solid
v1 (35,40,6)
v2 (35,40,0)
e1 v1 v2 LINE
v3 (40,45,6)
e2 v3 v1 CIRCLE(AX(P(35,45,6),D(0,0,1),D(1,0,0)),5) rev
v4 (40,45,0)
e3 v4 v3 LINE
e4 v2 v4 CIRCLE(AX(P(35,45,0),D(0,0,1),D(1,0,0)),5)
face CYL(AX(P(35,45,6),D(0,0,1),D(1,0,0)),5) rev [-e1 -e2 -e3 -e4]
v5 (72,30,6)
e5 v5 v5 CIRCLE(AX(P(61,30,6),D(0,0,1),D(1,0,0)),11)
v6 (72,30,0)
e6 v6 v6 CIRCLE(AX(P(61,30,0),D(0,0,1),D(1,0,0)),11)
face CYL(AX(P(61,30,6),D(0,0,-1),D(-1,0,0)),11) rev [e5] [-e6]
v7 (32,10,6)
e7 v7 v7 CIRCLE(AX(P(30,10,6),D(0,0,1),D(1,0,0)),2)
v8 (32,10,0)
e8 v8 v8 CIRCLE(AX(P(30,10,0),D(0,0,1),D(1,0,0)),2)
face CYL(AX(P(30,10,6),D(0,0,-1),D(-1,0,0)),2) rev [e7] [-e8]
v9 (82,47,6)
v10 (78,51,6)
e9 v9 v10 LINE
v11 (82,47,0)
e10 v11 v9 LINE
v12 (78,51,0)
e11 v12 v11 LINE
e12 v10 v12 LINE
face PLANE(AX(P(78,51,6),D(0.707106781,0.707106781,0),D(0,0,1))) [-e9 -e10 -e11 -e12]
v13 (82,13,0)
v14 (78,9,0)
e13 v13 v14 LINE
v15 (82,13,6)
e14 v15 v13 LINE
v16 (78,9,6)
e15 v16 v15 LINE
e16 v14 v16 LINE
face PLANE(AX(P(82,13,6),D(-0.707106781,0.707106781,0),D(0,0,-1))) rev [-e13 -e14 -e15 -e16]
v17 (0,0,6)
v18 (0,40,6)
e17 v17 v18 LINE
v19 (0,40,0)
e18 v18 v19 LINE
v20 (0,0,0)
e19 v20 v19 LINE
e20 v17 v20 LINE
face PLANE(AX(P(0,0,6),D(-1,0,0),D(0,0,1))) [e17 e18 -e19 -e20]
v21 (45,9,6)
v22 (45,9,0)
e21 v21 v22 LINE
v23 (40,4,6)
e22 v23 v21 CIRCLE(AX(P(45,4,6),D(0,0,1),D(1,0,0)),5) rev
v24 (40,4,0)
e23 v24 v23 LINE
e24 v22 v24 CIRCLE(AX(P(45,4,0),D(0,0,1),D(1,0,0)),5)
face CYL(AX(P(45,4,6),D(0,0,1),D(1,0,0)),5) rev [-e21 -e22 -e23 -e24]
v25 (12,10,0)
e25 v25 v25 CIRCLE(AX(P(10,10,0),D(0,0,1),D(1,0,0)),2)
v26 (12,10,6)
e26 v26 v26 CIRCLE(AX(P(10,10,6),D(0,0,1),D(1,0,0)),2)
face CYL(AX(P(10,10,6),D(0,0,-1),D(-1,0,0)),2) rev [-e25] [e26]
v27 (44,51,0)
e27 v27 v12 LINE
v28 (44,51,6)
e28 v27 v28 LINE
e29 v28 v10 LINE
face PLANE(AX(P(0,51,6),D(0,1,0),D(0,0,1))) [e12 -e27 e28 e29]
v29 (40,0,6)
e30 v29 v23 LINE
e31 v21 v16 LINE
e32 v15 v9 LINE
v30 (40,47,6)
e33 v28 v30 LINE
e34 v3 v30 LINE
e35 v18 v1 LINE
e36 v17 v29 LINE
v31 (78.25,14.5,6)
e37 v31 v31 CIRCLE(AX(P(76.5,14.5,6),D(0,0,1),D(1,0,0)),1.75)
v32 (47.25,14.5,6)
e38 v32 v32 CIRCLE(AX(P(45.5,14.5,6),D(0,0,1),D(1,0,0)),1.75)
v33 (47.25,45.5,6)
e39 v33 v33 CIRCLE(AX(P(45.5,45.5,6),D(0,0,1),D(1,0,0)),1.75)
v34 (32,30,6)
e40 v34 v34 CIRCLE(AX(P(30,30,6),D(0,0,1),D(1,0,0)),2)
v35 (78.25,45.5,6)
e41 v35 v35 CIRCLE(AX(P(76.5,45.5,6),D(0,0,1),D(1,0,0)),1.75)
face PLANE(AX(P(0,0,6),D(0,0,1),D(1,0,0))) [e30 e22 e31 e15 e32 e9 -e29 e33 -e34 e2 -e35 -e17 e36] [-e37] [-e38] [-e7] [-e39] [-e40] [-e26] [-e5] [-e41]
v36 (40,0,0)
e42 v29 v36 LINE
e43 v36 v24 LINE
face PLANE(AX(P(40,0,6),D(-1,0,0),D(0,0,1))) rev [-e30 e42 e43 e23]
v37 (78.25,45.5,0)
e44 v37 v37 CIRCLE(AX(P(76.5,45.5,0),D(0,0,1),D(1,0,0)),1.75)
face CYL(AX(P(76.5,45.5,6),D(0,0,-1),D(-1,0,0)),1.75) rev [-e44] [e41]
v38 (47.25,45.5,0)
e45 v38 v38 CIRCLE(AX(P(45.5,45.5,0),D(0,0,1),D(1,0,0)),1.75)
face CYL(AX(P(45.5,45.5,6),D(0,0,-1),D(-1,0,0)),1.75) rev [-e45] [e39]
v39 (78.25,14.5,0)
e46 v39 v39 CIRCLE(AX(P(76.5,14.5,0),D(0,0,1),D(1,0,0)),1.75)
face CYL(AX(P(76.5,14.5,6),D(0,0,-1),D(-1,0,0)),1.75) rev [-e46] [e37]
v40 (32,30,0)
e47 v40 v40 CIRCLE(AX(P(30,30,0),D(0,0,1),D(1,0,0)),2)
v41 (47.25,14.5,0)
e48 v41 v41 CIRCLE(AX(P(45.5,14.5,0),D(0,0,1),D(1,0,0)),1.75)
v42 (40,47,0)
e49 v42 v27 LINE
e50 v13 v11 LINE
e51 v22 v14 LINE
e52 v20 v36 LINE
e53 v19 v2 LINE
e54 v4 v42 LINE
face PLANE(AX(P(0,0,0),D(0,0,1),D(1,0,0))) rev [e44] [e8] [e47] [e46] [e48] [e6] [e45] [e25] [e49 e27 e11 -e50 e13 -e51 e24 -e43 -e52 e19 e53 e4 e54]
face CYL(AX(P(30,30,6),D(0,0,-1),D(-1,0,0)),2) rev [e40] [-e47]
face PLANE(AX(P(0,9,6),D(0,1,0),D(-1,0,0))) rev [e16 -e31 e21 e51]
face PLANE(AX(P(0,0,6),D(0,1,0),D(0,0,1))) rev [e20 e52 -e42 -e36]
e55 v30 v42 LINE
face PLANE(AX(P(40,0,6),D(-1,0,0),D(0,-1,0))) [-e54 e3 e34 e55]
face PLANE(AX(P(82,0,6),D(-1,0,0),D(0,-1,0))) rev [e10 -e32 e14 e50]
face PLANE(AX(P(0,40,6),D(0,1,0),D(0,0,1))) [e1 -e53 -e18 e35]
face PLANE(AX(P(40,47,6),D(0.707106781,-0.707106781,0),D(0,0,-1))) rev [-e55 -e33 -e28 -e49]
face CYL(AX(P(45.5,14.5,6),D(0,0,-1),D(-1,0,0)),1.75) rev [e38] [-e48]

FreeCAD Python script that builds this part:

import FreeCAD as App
import Part
import Sketcher
from FreeCAD import Vector
Q = App.Units.Quantity


def edges_at(feature, points):
    """Names of the edges that pass closest to the given points."""
    edges = feature.Shape.Edges
    near = lambda p: min(range(len(edges)), key=lambda i: edges[i].distToShape(Part.Vertex(*p))[0])
    return sorted({f"Edge{near(p) + 1}" for p in points})


def add_polygon(sketch, points):
    """Adds a closed chain of lines whose ends are joined by coincident constraints."""
    first, n = sketch.GeometryCount, len(points)
    for a, b in zip(points, points[1:] + points[:1]):
        sketch.addGeometry(Part.LineSegment(App.Vector(*a, 0), App.Vector(*b, 0)), False)
    for i in range(n):
        sketch.addConstraint(Sketcher.Constraint("Coincident", first + i, 2, first + (i + 1) % n, 1))

doc = App.newDocument("Part")
params = doc.addObject("Spreadsheet::Sheet", "Params")
for row, (alias, value) in enumerate([
    ("sketch1_diameter", "4 mm"),
    ("sketch1_diameter2", "22 mm"),
    ("sketch1_diameter3", "3.5 mm"),
    ("sketch1_width", "40 mm"),
    ("sketch1_width2", "42 mm"),
    ("pad1_length", "6 mm"),
    ("chamfer_size", "4 mm"),
    ("fillet_radius", "5 mm"),
], start=1):
    params.set(f"A{row}", alias)
    params.set(f"B{row}", "=" + value)
    params.setAlias(f"B{row}", alias)

body = doc.addObject("PartDesign::Body", "Body")

# Sketch on XY plane
sketch1 = body.newObject("Sketcher::SketchObject", "Sketch")
sketch1.AttachmentSupport = (doc.getObject("XY_Plane"), [""])
sketch1.MapMode = "FlatFace"
add_polygon(sketch1, [(0, 40), (0, 0), (40, 0), (40, 9), (82, 9), (82, 51), (40, 51), (40, 40)])  # lines 0-7
sketch1.addGeometry(Part.Circle(Vector(10, 10, 0), Vector(0, 0, 1), 2), False)  # 8
sketch1.addGeometry(Part.Circle(Vector(30, 10, 0), Vector(0, 0, 1), 2), False)  # 9
sketch1.addGeometry(Part.Circle(Vector(30, 30, 0), Vector(0, 0, 1), 2), False)  # 10
sketch1.addGeometry(Part.Circle(Vector(76.5, 45.5, 0), Vector(0, 0, 1), 1.75), False)  # 11
sketch1.addGeometry(Part.Circle(Vector(45.5, 14.5, 0), Vector(0, 0, 1), 1.75), False)  # 12
sketch1.addGeometry(Part.Circle(Vector(76.5, 14.5, 0), Vector(0, 0, 1), 1.75), False)  # 13
sketch1.addGeometry(Part.Circle(Vector(45.5, 45.5, 0), Vector(0, 0, 1), 1.75), False)  # 14
sketch1.addGeometry(Part.Circle(Vector(61, 30, 0), Vector(0, 0, 1), 11), False)  # 15
sketch1.addConstraint([
    Sketcher.Constraint("Vertical", 0),
    Sketcher.Constraint("Horizontal", 1),
    Sketcher.Constraint("Vertical", 2),
    Sketcher.Constraint("Horizontal", 3),
    Sketcher.Constraint("Vertical", 4),
    Sketcher.Constraint("Horizontal", 5),
    Sketcher.Constraint("Vertical", 6),
    Sketcher.Constraint("Horizontal", 7),
    Sketcher.Constraint("Coincident", 0, 2, -1, 1),
    Sketcher.Constraint("Equal", 8, 9),
    Sketcher.Constraint("Equal", 9, 10),
    Sketcher.Constraint("Equal", 11, 12),
    Sketcher.Constraint("Equal", 12, 13),
    Sketcher.Constraint("Equal", 13, 14),
    Sketcher.Constraint("Horizontal", 8, 3, 9, 3),
    Sketcher.Constraint("Horizontal", 12, 3, 13, 3),
    Sketcher.Constraint("Horizontal", 11, 3, 14, 3),
    Sketcher.Constraint("Horizontal", 10, 3, 15, 3),
    Sketcher.Constraint("Vertical", 9, 3, 10, 3),
    Sketcher.Constraint("Vertical", 11, 3, 13, 3),
    Sketcher.Constraint("Vertical", 12, 3, 14, 3),
    Sketcher.Constraint("Vertical", 2, 2, 5, 2),
    Sketcher.Constraint("Equal", 7, 0),
    Sketcher.Constraint("Equal", 5, 4),
    Sketcher.Constraint("Diameter", 8, Q("4 mm")),
    Sketcher.Constraint("Diameter", 15, Q("22 mm")),
    Sketcher.Constraint("Diameter", 11, Q("3.5 mm")),
    Sketcher.Constraint("DistanceX", 1, 1, 1, 2, Q("40 mm")),
    Sketcher.Constraint("DistanceX", 3, 1, 3, 2, Q("42 mm")),
    Sketcher.Constraint("DistanceY", 2, 1, 2, 2, Q("9 mm")),
    Sketcher.Constraint("DistanceX", -1, 1, 8, 3, Q("10 mm")),
    Sketcher.Constraint("DistanceY", -1, 1, 8, 3, Q("10 mm")),
    Sketcher.Constraint("DistanceX", -1, 1, 9, 3, Q("30 mm")),
    Sketcher.Constraint("DistanceY", -1, 1, 10, 3, Q("30 mm")),
    Sketcher.Constraint("DistanceX", -1, 1, 15, 3, Q("61 mm")),
    Sketcher.Constraint("DistanceX", 12, 3, 11, 3, Q("31 mm")),
    Sketcher.Constraint("DistanceY", 12, 3, 11, 3, Q("31 mm")),
    Sketcher.Constraint("DistanceX", -1, 1, 11, 3, Q("76.5 mm")),
    Sketcher.Constraint("DistanceY", -1, 1, 11, 3, Q("45.5 mm")),
])
sketch1.setExpression("Constraints[32]", "Params.sketch1_diameter")
sketch1.setExpression("Constraints[33]", "Params.sketch1_diameter2")
sketch1.setExpression("Constraints[34]", "Params.sketch1_diameter3")
sketch1.setExpression("Constraints[35]", "Params.sketch1_width")
sketch1.setExpression("Constraints[36]", "Params.sketch1_width2")
pad1 = body.newObject("PartDesign::Pad", "Pad")
pad1.Profile = sketch1
pad1.setExpression("Length", "Params.pad1_length")
doc.recompute()

chamfer = body.newObject("PartDesign::Chamfer", "Chamfer")
chamfer.Base = (pad1, edges_at(pad1, [(40, 51, 3), (82, 51, 3), (82, 9, 3)]))
chamfer.setExpression("Size", "Params.chamfer_size")
doc.recompute()

fillet = body.newObject("PartDesign::Fillet", "Fillet")
fillet.Base = (chamfer, edges_at(chamfer, [(40, 40, 3), (40, 9, 3)]))
fillet.setExpression("Radius", "Params.fillet_radius")

doc.recompute()
